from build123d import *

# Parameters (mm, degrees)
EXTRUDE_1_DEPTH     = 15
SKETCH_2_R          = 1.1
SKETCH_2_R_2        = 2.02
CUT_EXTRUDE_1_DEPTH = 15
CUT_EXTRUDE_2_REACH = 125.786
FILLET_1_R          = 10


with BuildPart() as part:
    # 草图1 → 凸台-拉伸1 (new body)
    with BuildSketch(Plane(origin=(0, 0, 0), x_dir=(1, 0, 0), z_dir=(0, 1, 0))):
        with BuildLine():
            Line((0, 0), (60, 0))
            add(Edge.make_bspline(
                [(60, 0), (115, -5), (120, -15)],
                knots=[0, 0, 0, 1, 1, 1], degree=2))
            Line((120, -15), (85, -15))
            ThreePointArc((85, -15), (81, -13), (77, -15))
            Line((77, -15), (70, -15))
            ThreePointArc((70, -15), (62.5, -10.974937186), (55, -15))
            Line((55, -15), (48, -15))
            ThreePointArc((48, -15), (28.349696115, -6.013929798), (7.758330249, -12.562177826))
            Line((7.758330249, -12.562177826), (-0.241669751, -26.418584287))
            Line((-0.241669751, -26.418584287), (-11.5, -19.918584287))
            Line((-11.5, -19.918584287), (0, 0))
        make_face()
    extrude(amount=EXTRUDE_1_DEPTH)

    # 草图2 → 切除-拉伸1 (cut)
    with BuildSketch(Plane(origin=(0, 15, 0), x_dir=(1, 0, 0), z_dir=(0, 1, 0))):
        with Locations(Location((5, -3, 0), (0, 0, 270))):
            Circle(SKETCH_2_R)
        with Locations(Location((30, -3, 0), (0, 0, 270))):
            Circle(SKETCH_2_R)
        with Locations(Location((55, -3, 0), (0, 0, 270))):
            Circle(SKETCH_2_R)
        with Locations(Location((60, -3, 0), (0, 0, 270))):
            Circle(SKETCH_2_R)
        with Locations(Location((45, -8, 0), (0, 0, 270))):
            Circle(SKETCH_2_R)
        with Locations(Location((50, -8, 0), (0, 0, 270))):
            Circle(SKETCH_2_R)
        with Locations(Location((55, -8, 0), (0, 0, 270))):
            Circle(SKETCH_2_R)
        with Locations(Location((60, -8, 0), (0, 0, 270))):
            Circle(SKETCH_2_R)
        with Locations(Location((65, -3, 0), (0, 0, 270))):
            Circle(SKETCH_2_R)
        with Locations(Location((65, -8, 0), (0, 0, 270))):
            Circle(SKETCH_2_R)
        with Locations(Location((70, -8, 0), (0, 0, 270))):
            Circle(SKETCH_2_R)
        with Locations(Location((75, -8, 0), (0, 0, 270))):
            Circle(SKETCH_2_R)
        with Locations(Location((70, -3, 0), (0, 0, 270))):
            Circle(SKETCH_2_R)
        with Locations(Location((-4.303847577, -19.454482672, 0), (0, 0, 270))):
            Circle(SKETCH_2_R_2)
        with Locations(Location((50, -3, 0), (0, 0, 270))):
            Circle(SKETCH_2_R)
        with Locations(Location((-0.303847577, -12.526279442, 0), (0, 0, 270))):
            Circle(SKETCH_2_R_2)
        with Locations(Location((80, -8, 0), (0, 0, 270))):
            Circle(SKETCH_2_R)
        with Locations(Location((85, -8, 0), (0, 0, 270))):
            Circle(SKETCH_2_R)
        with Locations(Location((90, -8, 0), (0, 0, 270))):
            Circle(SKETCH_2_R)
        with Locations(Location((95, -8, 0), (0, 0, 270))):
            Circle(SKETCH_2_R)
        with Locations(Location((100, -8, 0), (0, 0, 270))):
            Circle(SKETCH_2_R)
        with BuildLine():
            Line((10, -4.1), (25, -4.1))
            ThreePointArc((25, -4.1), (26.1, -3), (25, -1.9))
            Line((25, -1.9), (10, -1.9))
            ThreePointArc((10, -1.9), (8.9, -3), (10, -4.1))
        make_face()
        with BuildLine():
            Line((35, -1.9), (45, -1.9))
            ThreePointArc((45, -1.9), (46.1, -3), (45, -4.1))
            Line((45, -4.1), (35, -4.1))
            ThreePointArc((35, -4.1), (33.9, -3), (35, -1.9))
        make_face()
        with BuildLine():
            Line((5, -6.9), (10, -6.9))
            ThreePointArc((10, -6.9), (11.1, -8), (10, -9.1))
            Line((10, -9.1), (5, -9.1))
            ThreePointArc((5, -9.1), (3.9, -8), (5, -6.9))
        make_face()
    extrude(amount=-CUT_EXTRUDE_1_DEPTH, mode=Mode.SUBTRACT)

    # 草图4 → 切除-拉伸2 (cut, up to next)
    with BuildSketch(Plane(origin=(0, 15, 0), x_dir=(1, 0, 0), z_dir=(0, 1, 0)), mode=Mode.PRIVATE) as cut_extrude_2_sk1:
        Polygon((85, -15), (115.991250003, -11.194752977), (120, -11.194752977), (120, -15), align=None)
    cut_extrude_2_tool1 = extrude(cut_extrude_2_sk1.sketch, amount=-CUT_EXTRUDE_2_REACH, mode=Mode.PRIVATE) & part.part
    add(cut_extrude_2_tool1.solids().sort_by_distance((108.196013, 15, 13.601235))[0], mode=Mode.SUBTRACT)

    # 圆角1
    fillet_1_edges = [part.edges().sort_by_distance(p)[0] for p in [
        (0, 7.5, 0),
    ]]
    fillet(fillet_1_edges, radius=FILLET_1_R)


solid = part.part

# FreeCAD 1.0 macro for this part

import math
import FreeCAD as App
import Part
import Sketcher
Q = App.Units.Quantity


def edges_at(feature, points):
    """Names of the edges that pass closest to the given points."""
    edges = feature.Shape.Edges
    near = lambda p: min(range(len(edges)), key=lambda i: edges[i].distToShape(Part.Vertex(*p))[0])
    return sorted({f"Edge{near(p) + 1}" for p in points})

doc = App.newDocument("Part")
params = doc.addObject("Spreadsheet::Sheet", "Params")
for row, (alias, value) in enumerate([
    ("sketch1_radius", "30 mm"),
    ("sketch1_radius2", "9 mm"),
    ("sketch1_radius3", "5 mm"),
    ("sketch1_width", "60 mm"),
    ("sketch1_width2", "7 mm"),
    ("pad1_length", "15 mm"),
    ("sketch2_diameter", "2.2 mm"),
    ("sketch2_diameter2", "4.04 mm"),
    ("sketch2_width", "15 mm"),
    ("sketch2_width2", "10 mm"),
    ("sketch2_width3", "5 mm"),
    ("pocket1_length", "15 mm"),
    ("sketch3_width", "35 mm"),
    ("fillet_radius", "10 mm"),
], start=1):
    params.set(f"A{row}", alias)
    params.set(f"B{row}", "=" + value)
    params.setAlias(f"B{row}", alias)

body = doc.addObject("PartDesign::Body", "Body")

# Sketch on XZ plane
sketch1 = doc.addObject("Sketcher::SketchObject", "Sketch")
body.addObject(sketch1)
sketch1.AttachmentSupport = (doc.XZ_Plane, [""])
sketch1.MapMode = "FlatFace"
sketch1.addGeometry(Part.LineSegment(App.Vector(60, 0, 0), App.Vector(0, 0, 0)), False)
sketch1.addGeometry(Part.LineSegment(App.Vector(0, 0, 0), App.Vector(-11.5, 19.918584, 0)), False)
sketch1.addGeometry(Part.LineSegment(App.Vector(-11.5, 19.918584, 0), App.Vector(-0.24167, 26.418584, 0)), False)
sketch1.addGeometry(Part.LineSegment(App.Vector(-0.24167, 26.418584, 0), App.Vector(7.75833, 12.562178, 0)), False)
sketch1.addGeometry(Part.ArcOfCircle(Part.Circle(App.Vector(26.535635, 35.959033, 0), App.Vector(0, 0, 1), 30), math.radians(-128.749023), math.radians(-44.317546)), False)
sketch1.addGeometry(Part.LineSegment(App.Vector(48, 15, 0), App.Vector(55, 15, 0)), False)
sketch1.addGeometry(Part.ArcOfCircle(Part.Circle(App.Vector(62.5, 19.974937, 0), App.Vector(0, 0, 1), 9), math.radians(-146.44269), math.radians(-33.55731)), False)
sketch1.addGeometry(Part.LineSegment(App.Vector(70, 15, 0), App.Vector(77, 15, 0)), False)
sketch1.addGeometry(Part.ArcOfCircle(Part.Circle(App.Vector(81, 18, 0), App.Vector(0, 0, 1), 5), math.radians(-143.130102), math.radians(-36.869898)), False)
sketch1.addGeometry(Part.LineSegment(App.Vector(85, 15, 0), App.Vector(120, 15, 0)), False)
sketch1.addGeometry(Part.BSplineCurve([App.Vector(60, 0, 0), App.Vector(115, 5, 0), App.Vector(120, 15, 0)], [3, 3], [0, 1], False, 2, [1, 1, 1], False), False)
sketch1.addConstraint(Sketcher.Constraint("Block", 10))
sketch1.addConstraint(Sketcher.Constraint("Coincident", 0, 2, 1, 1))
sketch1.addConstraint(Sketcher.Constraint("Coincident", 1, 2, 2, 1))
sketch1.addConstraint(Sketcher.Constraint("Coincident", 2, 2, 3, 1))
sketch1.addConstraint(Sketcher.Constraint("Coincident", 3, 2, 4, 1))
sketch1.addConstraint(Sketcher.Constraint("Coincident", 4, 2, 5, 1))
sketch1.addConstraint(Sketcher.Constraint("Coincident", 5, 2, 6, 1))
sketch1.addConstraint(Sketcher.Constraint("Coincident", 6, 2, 7, 1))
sketch1.addConstraint(Sketcher.Constraint("Coincident", 7, 2, 8, 1))
sketch1.addConstraint(Sketcher.Constraint("Coincident", 8, 2, 9, 1))
sketch1.addConstraint(Sketcher.Constraint("Coincident", 9, 2, 10, 2))
sketch1.addConstraint(Sketcher.Constraint("Coincident", 10, 1, 0, 1))
sketch1.addConstraint(Sketcher.Constraint("Horizontal", 0))
sketch1.addConstraint(Sketcher.Constraint("Horizontal", 5))
sketch1.addConstraint(Sketcher.Constraint("Horizontal", 7))
sketch1.addConstraint(Sketcher.Constraint("Horizontal", 9))
sketch1.addConstraint(Sketcher.Constraint("Perpendicular", 1, 2))
sketch1.addConstraint(Sketcher.Constraint("Perpendicular", 2, 3))
sketch1.addConstraint(Sketcher.Constraint("Horizontal", 5, 2, 6, 2))
sketch1.addConstraint(Sketcher.Constraint("Horizontal", 7, 2, 8, 2))
sketch1.addConstraint(Sketcher.Constraint("Equal", 5, 7))
sketch1.addConstraint(Sketcher.Constraint("Radius", 4, Q("30 mm")))
sketch1.addConstraint(Sketcher.Constraint("Radius", 6, Q("9 mm")))
sketch1.addConstraint(Sketcher.Constraint("Radius", 8, Q("5 mm")))
sketch1.addConstraint(Sketcher.Constraint("DistanceX", 0, 2, 0, 1, Q("60 mm")))
sketch1.addConstraint(Sketcher.Constraint("DistanceX", 5, 1, 5, 2, Q("7 mm")))
sketch1.addConstraint(Sketcher.Constraint("DistanceX", 9, 1, 9, 2, Q("35 mm")))
sketch1.addConstraint(Sketcher.Constraint("Angle", 1, Q("120 deg")))
sketch1.addConstraint(Sketcher.Constraint("Distance", 1, Q("23 mm")))
sketch1.addConstraint(Sketcher.Constraint("Distance", 2, Q("13 mm")))
sketch1.addConstraint(Sketcher.Constraint("Distance", 3, Q("16 mm")))
sketch1.addConstraint(Sketcher.Constraint("DistanceX", -1, 1, 8, 3, Q("81 mm")))
sketch1.addConstraint(Sketcher.Constraint("DistanceX", -1, 1, 4, 2, Q("48 mm")))
sketch1.setExpression("Constraints[21]", "Params.sketch1_radius")
sketch1.setExpression("Constraints[22]", "Params.sketch1_radius2")
sketch1.setExpression("Constraints[23]", "Params.sketch1_radius3")
sketch1.setExpression("Constraints[24]", "Params.sketch1_width")
sketch1.setExpression("Constraints[25]", "Params.sketch1_width2")
pad1 = doc.addObject("PartDesign::Pad", "Pad")
body.addObject(pad1)
pad1.Profile = sketch1
pad1.setExpression("Length", "Params.pad1_length")
pad1.Reversed = True

# Sketch on XZ plane
sketch2 = doc.addObject("Sketcher::SketchObject", "Sketch001")
body.addObject(sketch2)
sketch2.AttachmentSupport = (doc.XZ_Plane, [""])
sketch2.MapMode = "FlatFace"
sketch2.AttachmentOffset = App.Placement(App.Vector(0, 0, -15), App.Rotation())
sketch2.addGeometry(Part.Circle(App.Vector(5, 3, 0), App.Vector(0, 0, 1), 1.1), False)
sketch2.addGeometry(Part.Circle(App.Vector(30, 3, 0), App.Vector(0, 0, 1), 1.1), False)
sketch2.addGeometry(Part.Circle(App.Vector(55, 3, 0), App.Vector(0, 0, 1), 1.1), False)
sketch2.addGeometry(Part.Circle(App.Vector(60, 3, 0), App.Vector(0, 0, 1), 1.1), False)
sketch2.addGeometry(Part.Circle(App.Vector(45, 8, 0), App.Vector(0, 0, 1), 1.1), False)
sketch2.addGeometry(Part.Circle(App.Vector(50, 8, 0), App.Vector(0, 0, 1), 1.1), False)
sketch2.addGeometry(Part.Circle(App.Vector(55, 8, 0), App.Vector(0, 0, 1), 1.1), False)
sketch2.addGeometry(Part.Circle(App.Vector(60, 8, 0), App.Vector(0, 0, 1), 1.1), False)
sketch2.addGeometry(Part.Circle(App.Vector(65, 3, 0), App.Vector(0, 0, 1), 1.1), False)
sketch2.addGeometry(Part.Circle(App.Vector(65, 8, 0), App.Vector(0, 0, 1), 1.1), False)
sketch2.addGeometry(Part.Circle(App.Vector(70, 8, 0), App.Vector(0, 0, 1), 1.1), False)
sketch2.addGeometry(Part.Circle(App.Vector(75, 8, 0), App.Vector(0, 0, 1), 1.1), False)
sketch2.addGeometry(Part.Circle(App.Vector(70, 3, 0), App.Vector(0, 0, 1), 1.1), False)
sketch2.addGeometry(Part.Circle(App.Vector(-4.3, 19.5, 0), App.Vector(0, 0, 1), 2), False)
sketch2.addGeometry(Part.Circle(App.Vector(50, 3, 0), App.Vector(0, 0, 1), 1.1), False)
sketch2.addGeometry(Part.Circle(App.Vector(-0.3, 12.5, 0), App.Vector(0, 0, 1), 2), False)
sketch2.addGeometry(Part.Circle(App.Vector(80, 8, 0), App.Vector(0, 0, 1), 1.1), False)
sketch2.addGeometry(Part.Circle(App.Vector(85, 8, 0), App.Vector(0, 0, 1), 1.1), False)
sketch2.addGeometry(Part.Circle(App.Vector(90, 8, 0), App.Vector(0, 0, 1), 1.1), False)
sketch2.addGeometry(Part.Circle(App.Vector(95, 8, 0), App.Vector(0, 0, 1), 1.1), False)
sketch2.addGeometry(Part.Circle(App.Vector(100, 8, 0), App.Vector(0, 0, 1), 1.1), False)
sketch2.addGeometry(Part.LineSegment(App.Vector(10, 4.1, 0), App.Vector(25, 4.1, 0)), False)
sketch2.addGeometry(Part.ArcOfCircle(Part.Circle(App.Vector(25, 3, 0), App.Vector(0, 0, 1), 1.1), math.radians(-90), math.radians(90)), False)
sketch2.addGeometry(Part.LineSegment(App.Vector(25, 1.9, 0), App.Vector(10, 1.9, 0)), False)
sketch2.addGeometry(Part.ArcOfCircle(Part.Circle(App.Vector(10, 3, 0), App.Vector(0, 0, 1), 1.1), math.radians(90), math.radians(270)), False)
sketch2.addGeometry(Part.LineSegment(App.Vector(45, 1.9, 0), App.Vector(35, 1.9, 0)), False)
sketch2.addGeometry(Part.ArcOfCircle(Part.Circle(App.Vector(35, 3, 0), App.Vector(0, 0, 1), 1.1), math.radians(90), math.radians(270)), False)
sketch2.addGeometry(Part.LineSegment(App.Vector(35, 4.1, 0), App.Vector(45, 4.1, 0)), False)
sketch2.addGeometry(Part.ArcOfCircle(Part.Circle(App.Vector(45, 3, 0), App.Vector(0, 0, 1), 1.1), math.radians(-90), math.radians(90)), False)
sketch2.addGeometry(Part.LineSegment(App.Vector(10, 6.9, 0), App.Vector(5, 6.9, 0)), False)
sketch2.addGeometry(Part.ArcOfCircle(Part.Circle(App.Vector(5, 8, 0), App.Vector(0, 0, 1), 1.1), math.radians(90), math.radians(270)), False)
sketch2.addGeometry(Part.LineSegment(App.Vector(5, 9.1, 0), App.Vector(10, 9.1, 0)), False)
sketch2.addGeometry(Part.ArcOfCircle(Part.Circle(App.Vector(10, 8, 0), App.Vector(0, 0, 1), 1.1), math.radians(-90), math.radians(90)), False)
sketch2.addConstraint(Sketcher.Constraint("Tangent", 21, 2, 22, 2))
sketch2.addConstraint(Sketcher.Constraint("Tangent", 22, 1, 23, 1))
sketch2.addConstraint(Sketcher.Constraint("Tangent", 23, 2, 24, 2))
sketch2.addConstraint(Sketcher.Constraint("Tangent", 24, 1, 21, 1))
sketch2.addConstraint(Sketcher.Constraint("Tangent", 25, 2, 26, 2))
sketch2.addConstraint(Sketcher.Constraint("Tangent", 26, 1, 27, 1))
sketch2.addConstraint(Sketcher.Constraint("Tangent", 27, 2, 28, 2))
sketch2.addConstraint(Sketcher.Constraint("Tangent", 28, 1, 25, 1))
sketch2.addConstraint(Sketcher.Constraint("Tangent", 29, 2, 30, 2))
sketch2.addConstraint(Sketcher.Constraint("Tangent", 30, 1, 31, 1))
sketch2.addConstraint(Sketcher.Constraint("Tangent", 31, 2, 32, 2))
sketch2.addConstraint(Sketcher.Constraint("Tangent", 32, 1, 29, 1))
sketch2.addConstraint(Sketcher.Constraint("Horizontal", 21))
sketch2.addConstraint(Sketcher.Constraint("Horizontal", 23))
sketch2.addConstraint(Sketcher.Constraint("Horizontal", 25))
sketch2.addConstraint(Sketcher.Constraint("Horizontal", 27))
sketch2.addConstraint(Sketcher.Constraint("Horizontal", 29))
sketch2.addConstraint(Sketcher.Constraint("Horizontal", 31))
sketch2.addConstraint(Sketcher.Constraint("Equal", 0, 1))
sketch2.addConstraint(Sketcher.Constraint("Equal", 1, 2))
sketch2.addConstraint(Sketcher.Constraint("Equal", 2, 3))
sketch2.addConstraint(Sketcher.Constraint("Equal", 3, 4))
sketch2.addConstraint(Sketcher.Constraint("Equal", 4, 5))
sketch2.addConstraint(Sketcher.Constraint("Equal", 5, 6))
sketch2.addConstraint(Sketcher.Constraint("Equal", 6, 7))
sketch2.addConstraint(Sketcher.Constraint("Equal", 7, 8))
sketch2.addConstraint(Sketcher.Constraint("Equal", 8, 9))
sketch2.addConstraint(Sketcher.Constraint("Equal", 9, 10))
sketch2.addConstraint(Sketcher.Constraint("Equal", 10, 11))
sketch2.addConstraint(Sketcher.Constraint("Equal", 11, 12))
sketch2.addConstraint(Sketcher.Constraint("Equal", 12, 14))
sketch2.addConstraint(Sketcher.Constraint("Equal", 13, 15))
sketch2.addConstraint(Sketcher.Constraint("Equal", 14, 16))
sketch2.addConstraint(Sketcher.Constraint("Equal", 16, 17))
sketch2.addConstraint(Sketcher.Constraint("Equal", 17, 18))
sketch2.addConstraint(Sketcher.Constraint("Equal", 18, 19))
sketch2.addConstraint(Sketcher.Constraint("Equal", 19, 20))
sketch2.addConstraint(Sketcher.Constraint("Equal", 20, 22))
sketch2.addConstraint(Sketcher.Constraint("Equal", 24, 26))
sketch2.addConstraint(Sketcher.Constraint("Equal", 28, 30))
sketch2.addConstraint(Sketcher.Constraint("Horizontal", 0, 3, 1, 3))
sketch2.addConstraint(Sketcher.Constraint("Horizontal", 1, 3, 2, 3))
sketch2.addConstraint(Sketcher.Constraint("Horizontal", 2, 3, 3, 3))
sketch2.addConstraint(Sketcher.Constraint("Horizontal", 4, 3, 5, 3))
sketch2.addConstraint(Sketcher.Constraint("Horizontal", 5, 3, 6, 3))
sketch2.addConstraint(Sketcher.Constraint("Horizontal", 6, 3, 7, 3))
sketch2.addConstraint(Sketcher.Constraint("Horizontal", 3, 3, 8, 3))
sketch2.addConstraint(Sketcher.Constraint("Horizontal", 7, 3, 9, 3))
sketch2.addConstraint(Sketcher.Constraint("Horizontal", 9, 3, 10, 3))
sketch2.addConstraint(Sketcher.Constraint("Horizontal", 10, 3, 11, 3))
sketch2.addConstraint(Sketcher.Constraint("Horizontal", 8, 3, 12, 3))
sketch2.addConstraint(Sketcher.Constraint("Horizontal", 12, 3, 14, 3))
sketch2.addConstraint(Sketcher.Constraint("Horizontal", 11, 3, 16, 3))
sketch2.addConstraint(Sketcher.Constraint("Horizontal", 16, 3, 17, 3))
sketch2.addConstraint(Sketcher.Constraint("Horizontal", 17, 3, 18, 3))
sketch2.addConstraint(Sketcher.Constraint("Horizontal", 18, 3, 19, 3))
sketch2.addConstraint(Sketcher.Constraint("Horizontal", 19, 3, 20, 3))
sketch2.addConstraint(Sketcher.Constraint("Horizontal", 14, 3, 22, 3))
sketch2.addConstraint(Sketcher.Constraint("Horizontal", 24, 3, 26, 3))
sketch2.addConstraint(Sketcher.Constraint("Horizontal", 20, 3, 30, 3))
sketch2.addConstraint(Sketcher.Constraint("Vertical", 2, 3, 6, 3))
sketch2.addConstraint(Sketcher.Constraint("Vertical", 3, 3, 7, 3))
sketch2.addConstraint(Sketcher.Constraint("Vertical", 8, 3, 9, 3))
sketch2.addConstraint(Sketcher.Constraint("Vertical", 10, 3, 12, 3))
sketch2.addConstraint(Sketcher.Constraint("Vertical", 5, 3, 14, 3))
sketch2.addConstraint(Sketcher.Constraint("Vertical", 4, 3, 28, 3))
sketch2.addConstraint(Sketcher.Constraint("Vertical", 0, 3, 30, 3))
sketch2.addConstraint(Sketcher.Constraint("Vertical", 24, 3, 32, 3))
sketch2.addConstraint(Sketcher.Constraint("Diameter", 0, Q("2.2 mm")))
sketch2.addConstraint(Sketcher.Constraint("Diameter", 13, Q("4.04 mm")))
sketch2.addConstraint(Sketcher.Constraint("DistanceX", 21, 1, 21, 2, Q("15 mm")))
sketch2.addConstraint(Sketcher.Constraint("DistanceX", 25, 2, 25, 1, Q("10 mm")))
sketch2.addConstraint(Sketcher.Constraint("DistanceX", 29, 2, 29, 1, Q("5 mm")))
sketch2.addConstraint(Sketcher.Constraint("DistanceX", -1, 1, 0, 3, Q("5 mm")))
sketch2.addConstraint(Sketcher.Constraint("DistanceY", -1, 1, 0, 3, Q("3 mm")))
sketch2.addConstraint(Sketcher.Constraint("DistanceX", -1, 1, 1, 3, Q("30 mm")))
sketch2.addConstraint(Sketcher.Constraint("DistanceX", -1, 1, 2, 3, Q("55 mm")))
sketch2.addConstraint(Sketcher.Constraint("DistanceX", -1, 1, 3, 3, Q("60 mm")))
sketch2.addConstraint(Sketcher.Constraint("DistanceX", -1, 1, 4, 3, Q("45 mm")))
sketch2.addConstraint(Sketcher.Constraint("DistanceY", -1, 1, 4, 3, Q("8 mm")))
sketch2.addConstraint(Sketcher.Constraint("DistanceX", -1, 1, 5, 3, Q("50 mm")))
sketch2.addConstraint(Sketcher.Constraint("DistanceX", -1, 1, 8, 3, Q("65 mm")))
sketch2.addConstraint(Sketcher.Constraint("DistanceX", -1, 1, 10, 3, Q("70 mm")))
sketch2.addConstraint(Sketcher.Constraint("DistanceX", -1, 1, 11, 3, Q("75 mm")))
sketch2.addConstraint(Sketcher.Constraint("DistanceX", -1, 1, 16, 3, Q("80 mm")))
sketch2.addConstraint(Sketcher.Constraint("DistanceX", -1, 1, 17, 3, Q("85 mm")))
sketch2.addConstraint(Sketcher.Constraint("DistanceX", -1, 1, 18, 3, Q("90 mm")))
sketch2.addConstraint(Sketcher.Constraint("DistanceX", -1, 1, 19, 3, Q("95 mm")))
sketch2.addConstraint(Sketcher.Constraint("DistanceX", -1, 1, 20, 3, Q("100 mm")))
sketch2.addConstraint(Sketcher.Constraint("DistanceX", 13, 3, 15, 3, Q("4 mm")))
sketch2.addConstraint(Sketcher.Constraint("DistanceY", -1, 1, 15, 3, Q("12.526279 mm")))
sketch2.addConstraint(Sketcher.Constraint("DistanceX", 13, 3, -1, 1, Q("4.303848 mm")))
sketch2.addConstraint(Sketcher.Constraint("DistanceY", -1, 1, 13, 3, Q("19.454483 mm")))
sketch2.setExpression("Constraints[68]", "Params.sketch2_diameter")
sketch2.setExpression("Constraints[69]", "Params.sketch2_diameter2")
sketch2.setExpression("Constraints[70]", "Params.sketch2_width")
sketch2.setExpression("Constraints[71]", "Params.sketch2_width2")
sketch2.setExpression("Constraints[72]", "Params.sketch2_width3")
pocket1 = doc.addObject("PartDesign::Pocket", "Pocket")
body.addObject(pocket1)
pocket1.Profile = sketch2
pocket1.setExpression("Length", "Params.pocket1_length")
pocket1.Reversed = True

# Sketch on XZ plane
sketch3 = doc.addObject("Sketcher::SketchObject", "Sketch002")
body.addObject(sketch3)
sketch3.AttachmentSupport = (doc.XZ_Plane, [""])
sketch3.MapMode = "FlatFace"
sketch3.AttachmentOffset = App.Placement(App.Vector(0, 0, -15), App.Rotation())
sketch3.addGeometry(Part.LineSegment(App.Vector(116, 11.2, 0), App.Vector(85, 15, 0)), False)
sketch3.addGeometry(Part.LineSegment(App.Vector(85, 15, 0), App.Vector(120, 15, 0)), False)
sketch3.addGeometry(Part.LineSegment(App.Vector(120, 15, 0), App.Vector(120, 11.2, 0)), False)
sketch3.addGeometry(Part.LineSegment(App.Vector(120, 11.2, 0), App.Vector(116, 11.2, 0)), False)
sketch3.addConstraint(Sketcher.Constraint("Coincident", 0, 2, 1, 1))
sketch3.addConstraint(Sketcher.Constraint("Coincident", 1, 2, 2, 1))
sketch3.addConstraint(Sketcher.Constraint("Coincident", 2, 2, 3, 1))
sketch3.addConstraint(Sketcher.Constraint("Coincident", 3, 2, 0, 1))
sketch3.addConstraint(Sketcher.Constraint("Horizontal", 1))
sketch3.addConstraint(Sketcher.Constraint("Vertical", 2))
sketch3.addConstraint(Sketcher.Constraint("Horizontal", 3))
sketch3.addConstraint(Sketcher.Constraint("DistanceX", 1, 1, 1, 2, Q("35 mm")))
sketch3.addConstraint(Sketcher.Constraint("Angle", 0, Q("173 deg")))
sketch3.addConstraint(Sketcher.Constraint("DistanceX", -1, 1, 0, 2, Q("85 mm")))
sketch3.addConstraint(Sketcher.Constraint("DistanceY", -1, 1, 0, 2, Q("15 mm")))
sketch3.addConstraint(Sketcher.Constraint("DistanceX", 3, 2, 3, 1, Q("4.00875 mm")))
sketch3.setExpression("Constraints[7]", "Params.sketch3_width")
pocket2 = doc.addObject("PartDesign::Pocket", "Pocket001")
body.addObject(pocket2)
pocket2.Profile = sketch3
pocket2.Type = "UpToFirst"
pocket2.Reversed = True
doc.recompute()

fillet = doc.addObject("PartDesign::Fillet", "Fillet")
body.addObject(fillet)
fillet.Base = (pocket2, edges_at(pocket2, [(0, 7.5, 0)]))
fillet.setExpression("Radius", "Params.fillet_radius")

doc.recompute()
